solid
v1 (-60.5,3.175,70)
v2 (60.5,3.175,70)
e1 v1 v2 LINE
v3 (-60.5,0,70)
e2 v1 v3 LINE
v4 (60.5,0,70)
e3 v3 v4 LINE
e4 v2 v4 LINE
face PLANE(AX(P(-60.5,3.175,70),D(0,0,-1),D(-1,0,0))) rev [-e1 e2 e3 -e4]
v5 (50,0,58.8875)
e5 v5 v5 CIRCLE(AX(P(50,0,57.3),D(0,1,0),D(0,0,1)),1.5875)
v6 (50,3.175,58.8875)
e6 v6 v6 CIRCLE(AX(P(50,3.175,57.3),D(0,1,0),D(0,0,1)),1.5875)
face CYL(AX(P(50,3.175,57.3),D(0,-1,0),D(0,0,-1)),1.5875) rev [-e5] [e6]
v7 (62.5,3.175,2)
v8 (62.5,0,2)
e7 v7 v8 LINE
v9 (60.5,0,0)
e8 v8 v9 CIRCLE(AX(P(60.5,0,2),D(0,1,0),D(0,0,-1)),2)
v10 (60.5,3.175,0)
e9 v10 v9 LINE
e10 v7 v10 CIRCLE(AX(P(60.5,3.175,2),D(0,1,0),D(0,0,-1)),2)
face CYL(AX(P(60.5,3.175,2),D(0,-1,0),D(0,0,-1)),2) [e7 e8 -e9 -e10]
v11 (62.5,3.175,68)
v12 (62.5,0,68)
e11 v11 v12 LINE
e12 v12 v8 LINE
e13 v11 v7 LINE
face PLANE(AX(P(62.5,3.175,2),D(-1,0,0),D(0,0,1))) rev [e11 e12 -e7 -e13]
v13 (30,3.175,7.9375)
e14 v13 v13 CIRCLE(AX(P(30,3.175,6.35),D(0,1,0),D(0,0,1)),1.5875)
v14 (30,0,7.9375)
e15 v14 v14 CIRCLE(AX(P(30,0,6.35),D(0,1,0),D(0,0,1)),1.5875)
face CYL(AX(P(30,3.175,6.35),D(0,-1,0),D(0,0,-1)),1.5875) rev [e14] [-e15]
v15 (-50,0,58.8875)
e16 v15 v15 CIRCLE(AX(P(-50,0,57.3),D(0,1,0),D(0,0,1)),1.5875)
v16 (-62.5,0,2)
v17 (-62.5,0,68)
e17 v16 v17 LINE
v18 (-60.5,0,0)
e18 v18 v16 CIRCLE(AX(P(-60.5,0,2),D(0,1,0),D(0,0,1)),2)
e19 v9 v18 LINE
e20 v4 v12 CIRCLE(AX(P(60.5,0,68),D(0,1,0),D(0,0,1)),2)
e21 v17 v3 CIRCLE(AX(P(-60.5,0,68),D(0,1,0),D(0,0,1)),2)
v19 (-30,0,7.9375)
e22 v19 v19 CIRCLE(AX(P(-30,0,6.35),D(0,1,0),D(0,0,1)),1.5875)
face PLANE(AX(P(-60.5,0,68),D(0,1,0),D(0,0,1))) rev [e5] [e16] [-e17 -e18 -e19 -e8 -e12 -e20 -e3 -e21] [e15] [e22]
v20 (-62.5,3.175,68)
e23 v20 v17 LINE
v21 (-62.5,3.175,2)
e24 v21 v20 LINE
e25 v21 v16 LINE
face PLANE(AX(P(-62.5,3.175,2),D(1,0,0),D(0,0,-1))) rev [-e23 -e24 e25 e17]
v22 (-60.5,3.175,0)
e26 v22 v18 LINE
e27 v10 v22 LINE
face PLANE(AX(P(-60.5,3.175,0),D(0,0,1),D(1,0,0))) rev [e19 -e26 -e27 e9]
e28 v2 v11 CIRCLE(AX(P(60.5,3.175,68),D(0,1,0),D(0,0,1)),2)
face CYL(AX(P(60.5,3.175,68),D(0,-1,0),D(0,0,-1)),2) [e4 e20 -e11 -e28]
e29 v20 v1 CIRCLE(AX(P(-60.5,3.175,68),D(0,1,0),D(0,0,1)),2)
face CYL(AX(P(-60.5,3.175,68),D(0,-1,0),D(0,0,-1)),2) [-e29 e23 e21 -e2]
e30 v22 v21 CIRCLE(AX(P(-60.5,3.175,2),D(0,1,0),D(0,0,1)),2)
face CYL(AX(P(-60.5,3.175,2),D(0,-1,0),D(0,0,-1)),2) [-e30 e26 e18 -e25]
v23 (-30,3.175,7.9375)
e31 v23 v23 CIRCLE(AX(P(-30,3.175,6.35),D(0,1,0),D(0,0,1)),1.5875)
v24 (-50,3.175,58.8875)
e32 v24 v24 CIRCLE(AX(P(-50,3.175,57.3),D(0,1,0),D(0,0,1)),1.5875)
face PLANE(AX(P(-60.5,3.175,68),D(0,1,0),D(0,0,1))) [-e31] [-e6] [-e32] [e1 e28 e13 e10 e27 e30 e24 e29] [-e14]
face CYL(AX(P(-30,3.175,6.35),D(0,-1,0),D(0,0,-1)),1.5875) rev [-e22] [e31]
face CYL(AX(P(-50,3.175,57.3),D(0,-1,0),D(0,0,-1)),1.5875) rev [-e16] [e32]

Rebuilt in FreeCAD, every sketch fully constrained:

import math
import FreeCAD as App
import Part
import Sketcher
Q = App.Units.Quantity

doc = App.newDocument("Part")
body = doc.addObject("PartDesign::Body", "Body")

sketch1 = body.newObject("Sketcher::SketchObject", "Sketch")
sketch1.AttachmentSupport = (doc.getObject("XZ_Plane"), [""])
sketch1.MapMode = "FlatFace"
sketch1.addGeometry([
    Part.LineSegment(App.Vector(60.5, 0, 0), App.Vector(-60.5, 0, 0)),
    Part.ArcOfCircle(Part.Circle(App.Vector(-60.5, 2, 0), App.Vector(0, 0, 1), 2), math.radians(-180), math.radians(-90)),
    Part.LineSegment(App.Vector(-62.5, 2, 0), App.Vector(-62.5, 68, 0)),
    Part.ArcOfCircle(Part.Circle(App.Vector(-60.5, 68, 0), App.Vector(0, 0, 1), 2), math.radians(90), math.radians(180)),
    Part.LineSegment(App.Vector(-60.5, 70, 0), App.Vector(60.5, 70, 0)),
    Part.ArcOfCircle(Part.Circle(App.Vector(60.5, 68, 0), App.Vector(0, 0, 1), 2), math.radians(0), math.radians(90)),
    Part.LineSegment(App.Vector(62.5, 68, 0), App.Vector(62.5, 2, 0)),
    Part.ArcOfCircle(Part.Circle(App.Vector(60.5, 2, 0), App.Vector(0, 0, 1), 2), math.radians(-90), math.radians(0)),
    Part.Circle(App.Vector(50, 57.3, 0), App.Vector(0, 0, 1), 1.5875),
    Part.Circle(App.Vector(-50, 57.3, 0), App.Vector(0, 0, 1), 1.5875),
    Part.Circle(App.Vector(30, 6.35, 0), App.Vector(0, 0, 1), 1.5875),
    Part.Circle(App.Vector(-30, 6.35, 0), App.Vector(0, 0, 1), 1.5875),
], False)
sketch1.addConstraint([
    Sketcher.Constraint("Tangent", 0, 2, 1, 2),
    Sketcher.Constraint("Tangent", 1, 1, 2, 1),
    Sketcher.Constraint("Tangent", 2, 2, 3, 2),
    Sketcher.Constraint("Tangent", 3, 1, 4, 1),
    Sketcher.Constraint("Tangent", 4, 2, 5, 2),
    Sketcher.Constraint("Tangent", 5, 1, 6, 1),
    Sketcher.Constraint("Tangent", 6, 2, 7, 2),
    Sketcher.Constraint("Tangent", 7, 1, 0, 1),
    Sketcher.Constraint("Horizontal", 0),
    Sketcher.Constraint("Vertical", 2),
    Sketcher.Constraint("Horizontal", 4),
    Sketcher.Constraint("Vertical", 6),
    Sketcher.Constraint("Equal", 1, 3),
    Sketcher.Constraint("Equal", 3, 5),
    Sketcher.Constraint("Equal", 5, 7),
    Sketcher.Constraint("Equal", 8, 9),
    Sketcher.Constraint("Equal", 9, 10),
    Sketcher.Constraint("Equal", 10, 11),
    Sketcher.Constraint("Symmetric", 0, 2, 7, 1, -1, 1),
    Sketcher.Constraint("Symmetric", 8, 3, 9, 3, -2),
    Sketcher.Constraint("Symmetric", 10, 3, 11, 3, -2),
    Sketcher.Constraint("Radius", 1, Q("2 mm")),
    Sketcher.Constraint("DistanceX", 0, 2, 0, 1, Q("121 mm")),
    Sketcher.Constraint("DistanceY", 2, 1, 2, 2, Q("66 mm")),
    Sketcher.Constraint("Diameter", 8, Q("3.175 mm")),
    Sketcher.Constraint("DistanceX", -1, 1, 8, 3, Q("50 mm")),
    Sketcher.Constraint("DistanceX", -1, 1, 10, 3, Q("30 mm")),
    Sketcher.Constraint("DistanceY", -1, 1, 8, 3, Q("57.3 mm")),
    Sketcher.Constraint("DistanceY", -1, 1, 10, 3, Q("6.35 mm")),
])
pad1 = body.newObject("PartDesign::Pad", "Pad")
pad1.Profile = sketch1
pad1.Length = 3.175
pad1.Reversed = True

doc.recompute()
